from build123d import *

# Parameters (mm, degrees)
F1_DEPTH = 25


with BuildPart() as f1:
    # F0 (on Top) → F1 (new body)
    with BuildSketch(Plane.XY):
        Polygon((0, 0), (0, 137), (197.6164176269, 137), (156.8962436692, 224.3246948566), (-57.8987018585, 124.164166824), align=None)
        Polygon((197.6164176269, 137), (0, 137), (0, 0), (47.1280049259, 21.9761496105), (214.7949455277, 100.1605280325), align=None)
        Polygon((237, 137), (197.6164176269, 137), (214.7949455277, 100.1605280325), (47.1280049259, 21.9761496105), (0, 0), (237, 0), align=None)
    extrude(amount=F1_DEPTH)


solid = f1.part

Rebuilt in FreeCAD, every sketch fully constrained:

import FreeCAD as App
import Part
import Sketcher
from FreeCAD import Vector
Q = App.Units.Quantity


def add_polygon(sketch, points):
    """Adds a closed chain of lines whose ends are joined by coincident constraints."""
    first, n = sketch.GeometryCount, len(points)
    for a, b in zip(points, points[1:] + points[:1]):
        sketch.addGeometry(Part.LineSegment(App.Vector(*a, 0), App.Vector(*b, 0)), False)
    for i in range(n):
        sketch.addConstraint(Sketcher.Constraint("Coincident", first + i, 2, first + (i + 1) % n, 1))

doc = App.newDocument("Part")
body = doc.addObject("PartDesign::Body", "Body")

# Sketch on XY plane
sketch1 = doc.addObject("Sketcher::SketchObject", "Sketch")
body.addObject(sketch1)
sketch1.AttachmentSupport = (doc.XY_Plane, [""])
sketch1.MapMode = "FlatFace"
add_polygon(sketch1, [(157, 224), (-58, 124), (0, 0), (237, 0), (237, 137), (198, 137)])  # lines 0-5
sketch1.addConstraint(Sketcher.Constraint("Horizontal", 2))
sketch1.addConstraint(Sketcher.Constraint("Vertical", 3))
sketch1.addConstraint(Sketcher.Constraint("Horizontal", 4))
sketch1.addConstraint(Sketcher.Constraint("Coincident", 1, 2, -1, 1))
sketch1.addConstraint(Sketcher.Constraint("Perpendicular", 0, 1))
sketch1.addConstraint(Sketcher.Constraint("Parallel", 1, 5))
sketch1.addConstraint(Sketcher.Constraint("DistanceX", 2, 1, 2, 2, Q("237 mm")))
sketch1.addConstraint(Sketcher.Constraint("DistanceY", 3, 1, 3, 2, Q("137 mm")))
sketch1.addConstraint(Sketcher.Constraint("Angle", 0, Q("-155 deg")))
sketch1.addConstraint(Sketcher.Constraint("Distance", 0, Q("237 mm")))
sketch1.addConstraint(Sketcher.Constraint("Distance", 1, Q("137 mm")))
pad1 = doc.addObject("PartDesign::Pad", "Pad")
body.addObject(pad1)
pad1.Profile = sketch1
pad1.Length = 25

doc.recompute()
